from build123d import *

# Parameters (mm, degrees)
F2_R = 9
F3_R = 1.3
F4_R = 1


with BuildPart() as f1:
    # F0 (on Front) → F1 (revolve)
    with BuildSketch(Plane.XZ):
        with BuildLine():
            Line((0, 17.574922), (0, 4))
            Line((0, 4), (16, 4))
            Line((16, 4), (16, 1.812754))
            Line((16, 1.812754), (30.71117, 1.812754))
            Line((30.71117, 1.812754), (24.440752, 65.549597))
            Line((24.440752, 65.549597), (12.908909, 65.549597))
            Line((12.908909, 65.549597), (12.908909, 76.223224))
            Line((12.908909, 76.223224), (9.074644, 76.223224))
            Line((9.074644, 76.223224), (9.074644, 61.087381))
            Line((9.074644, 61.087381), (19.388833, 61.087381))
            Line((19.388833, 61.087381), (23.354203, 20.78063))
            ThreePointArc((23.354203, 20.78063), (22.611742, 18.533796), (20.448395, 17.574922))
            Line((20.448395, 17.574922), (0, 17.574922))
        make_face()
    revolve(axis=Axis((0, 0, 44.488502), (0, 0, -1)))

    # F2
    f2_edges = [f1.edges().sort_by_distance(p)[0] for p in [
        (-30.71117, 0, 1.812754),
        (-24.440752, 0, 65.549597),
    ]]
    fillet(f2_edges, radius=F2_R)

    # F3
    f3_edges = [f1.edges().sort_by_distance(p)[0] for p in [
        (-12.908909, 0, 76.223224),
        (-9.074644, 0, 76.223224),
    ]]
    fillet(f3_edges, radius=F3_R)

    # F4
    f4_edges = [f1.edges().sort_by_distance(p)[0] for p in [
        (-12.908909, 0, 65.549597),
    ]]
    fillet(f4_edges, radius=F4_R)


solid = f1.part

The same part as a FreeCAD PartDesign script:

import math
import FreeCAD as App
import Part
import Sketcher
from FreeCAD import Vector


def edges_at(feature, points):
    """Names of the edges that pass closest to the given points."""
    edges = feature.Shape.Edges
    near = lambda p: min(range(len(edges)), key=lambda i: edges[i].distToShape(Part.Vertex(*p))[0])
    return sorted({f"Edge{near(p) + 1}" for p in points})

doc = App.newDocument("Part")
params = doc.addObject("Spreadsheet::Sheet", "Params")
for row, (alias, value) in enumerate([
    ("sketch1_width", "16 mm"),
    ("revolution_angle", "360 deg"),
    ("fillet_radius", "9 mm"),
    ("fillet2_radius", "1.3 mm"),
    ("fillet3_radius", "1 mm"),
], start=1):
    params.set(f"A{row}", alias)
    params.set(f"B{row}", "=" + value)
    params.setAlias(f"B{row}", alias)

body = doc.addObject("PartDesign::Body", "Body")

# Sketch on XZ plane
sketch1 = body.newObject("Sketcher::SketchObject", "Sketch")
sketch1.AttachmentSupport = (doc.getObject("XZ_Plane"), [""])
sketch1.MapMode = "FlatFace"
sketch1.addGeometry([
    Part.LineSegment(Vector(0, 17.574922, 0), Vector(0, 4, 0)),  # 0
    Part.LineSegment(Vector(0, 4, 0), Vector(16, 4, 0)),  # 1
    Part.LineSegment(Vector(16, 4, 0), Vector(16, 1.812754, 0)),  # 2
    Part.LineSegment(Vector(16, 1.812754, 0), Vector(30.71117, 1.812754, 0)),  # 3
    Part.LineSegment(Vector(30.71117, 1.812754, 0), Vector(24.440752, 65.549597, 0)),  # 4
    Part.LineSegment(Vector(24.440752, 65.549597, 0), Vector(12.908909, 65.549597, 0)),  # 5
    Part.LineSegment(Vector(12.908909, 65.549597, 0), Vector(12.908909, 76.223224, 0)),  # 6
    Part.LineSegment(Vector(12.908909, 76.223224, 0), Vector(9.074644, 76.223224, 0)),  # 7
    Part.LineSegment(Vector(9.074644, 76.223224, 0), Vector(9.074644, 61.087381, 0)),  # 8
    Part.LineSegment(Vector(9.074644, 61.087381, 0), Vector(19.388833, 61.087381, 0)),  # 9
    Part.LineSegment(Vector(19.388833, 61.087381, 0), Vector(23.354203, 20.78063, 0)),  # 10
    Part.ArcOfCircle(Part.Circle(Vector(20.448395, 20.494758, 0), Vector(0, 0, 1), 2.919836), math.radians(-89.999998), math.radians(5.618647)),  # 11
    Part.LineSegment(Vector(20.448395, 17.574922, 0), Vector(0, 17.574922, 0)),  # 12
], False)
sketch1.addConstraint([
    Sketcher.Constraint("Coincident", 0, 2, 1, 1),
    Sketcher.Constraint("Coincident", 1, 2, 2, 1),
    Sketcher.Constraint("Coincident", 2, 2, 3, 1),
    Sketcher.Constraint("Coincident", 3, 2, 4, 1),
    Sketcher.Constraint("Coincident", 4, 2, 5, 1),
    Sketcher.Constraint("Coincident", 5, 2, 6, 1),
    Sketcher.Constraint("Coincident", 6, 2, 7, 1),
    Sketcher.Constraint("Coincident", 7, 2, 8, 1),
    Sketcher.Constraint("Coincident", 8, 2, 9, 1),
    Sketcher.Constraint("Coincident", 9, 2, 10, 1),
    Sketcher.Constraint("Tangent", 10, 2, 11, 2),
    Sketcher.Constraint("Tangent", 11, 1, 12, 1),
    Sketcher.Constraint("Coincident", 12, 2, 0, 1),
    Sketcher.Constraint("Vertical", 0),
    Sketcher.Constraint("Horizontal", 1),
    Sketcher.Constraint("Vertical", 2),
    Sketcher.Constraint("Horizontal", 3),
    Sketcher.Constraint("Horizontal", 5),
    Sketcher.Constraint("Vertical", 6),
    Sketcher.Constraint("Horizontal", 7),
    Sketcher.Constraint("Vertical", 8),
    Sketcher.Constraint("Horizontal", 9),
    Sketcher.Constraint("Horizontal", 12),
    Sketcher.Constraint("PointOnObject", 0, 2, -2),
    Sketcher.Constraint("Parallel", 4, 10),
    Sketcher.Constraint("DistanceX", 1, 1, 1, 2, 16.0),
    Sketcher.Constraint("DistanceY", -1, 1, 0, 2, 4.0),
    Sketcher.Constraint("Radius", 11, 2.919836),
    Sketcher.Constraint("DistanceX", 3, 1, 3, 2, 14.71117),
    Sketcher.Constraint("DistanceX", 9, 1, 9, 2, 10.314189),
    Sketcher.Constraint("Distance", 4, 64.044542),
    Sketcher.Constraint("DistanceX", 5, 2, 5, 1, 11.531843),
    Sketcher.Constraint("DistanceX", 7, 2, 7, 1, 3.834265),
    Sketcher.Constraint("DistanceX", 12, 2, 12, 1, 20.448395),
    Sketcher.Constraint("DistanceY", 0, 2, 0, 1, 13.574922),
    Sketcher.Constraint("DistanceY", 2, 2, 2, 1, 2.187246),
    Sketcher.Constraint("DistanceY", 6, 1, 6, 2, 10.673627),
    Sketcher.Constraint("DistanceY", 8, 2, 8, 1, 15.135843),
])
sketch1.setExpression("Constraints[25]", "Params.sketch1_width")
revolution = body.newObject("PartDesign::Revolution", "Revolution")
revolution.Profile = sketch1
revolution.ReferenceAxis = (sketch1, ["V_Axis"])
revolution.setExpression("Angle", "Params.revolution_angle")
doc.recompute()

fillet = body.newObject("PartDesign::Fillet", "Fillet")
fillet.Base = (revolution, edges_at(revolution, [(-30.711, 0, 1.813), (-24.441, 0, 65.55)]))
fillet.setExpression("Radius", "Params.fillet_radius")
doc.recompute()

fillet2 = body.newObject("PartDesign::Fillet", "Fillet001")
fillet2.Base = (fillet, edges_at(fillet, [(-12.909, 0, 76.223), (-9.075, 0, 76.223)]))
fillet2.setExpression("Radius", "Params.fillet2_radius")
doc.recompute()

fillet3 = body.newObject("PartDesign::Fillet", "Fillet002")
fillet3.Base = (fillet2, edges_at(fillet2, [(-12.909, 0, 65.55)]))
fillet3.setExpression("Radius", "Params.fillet3_radius")

doc.recompute()
